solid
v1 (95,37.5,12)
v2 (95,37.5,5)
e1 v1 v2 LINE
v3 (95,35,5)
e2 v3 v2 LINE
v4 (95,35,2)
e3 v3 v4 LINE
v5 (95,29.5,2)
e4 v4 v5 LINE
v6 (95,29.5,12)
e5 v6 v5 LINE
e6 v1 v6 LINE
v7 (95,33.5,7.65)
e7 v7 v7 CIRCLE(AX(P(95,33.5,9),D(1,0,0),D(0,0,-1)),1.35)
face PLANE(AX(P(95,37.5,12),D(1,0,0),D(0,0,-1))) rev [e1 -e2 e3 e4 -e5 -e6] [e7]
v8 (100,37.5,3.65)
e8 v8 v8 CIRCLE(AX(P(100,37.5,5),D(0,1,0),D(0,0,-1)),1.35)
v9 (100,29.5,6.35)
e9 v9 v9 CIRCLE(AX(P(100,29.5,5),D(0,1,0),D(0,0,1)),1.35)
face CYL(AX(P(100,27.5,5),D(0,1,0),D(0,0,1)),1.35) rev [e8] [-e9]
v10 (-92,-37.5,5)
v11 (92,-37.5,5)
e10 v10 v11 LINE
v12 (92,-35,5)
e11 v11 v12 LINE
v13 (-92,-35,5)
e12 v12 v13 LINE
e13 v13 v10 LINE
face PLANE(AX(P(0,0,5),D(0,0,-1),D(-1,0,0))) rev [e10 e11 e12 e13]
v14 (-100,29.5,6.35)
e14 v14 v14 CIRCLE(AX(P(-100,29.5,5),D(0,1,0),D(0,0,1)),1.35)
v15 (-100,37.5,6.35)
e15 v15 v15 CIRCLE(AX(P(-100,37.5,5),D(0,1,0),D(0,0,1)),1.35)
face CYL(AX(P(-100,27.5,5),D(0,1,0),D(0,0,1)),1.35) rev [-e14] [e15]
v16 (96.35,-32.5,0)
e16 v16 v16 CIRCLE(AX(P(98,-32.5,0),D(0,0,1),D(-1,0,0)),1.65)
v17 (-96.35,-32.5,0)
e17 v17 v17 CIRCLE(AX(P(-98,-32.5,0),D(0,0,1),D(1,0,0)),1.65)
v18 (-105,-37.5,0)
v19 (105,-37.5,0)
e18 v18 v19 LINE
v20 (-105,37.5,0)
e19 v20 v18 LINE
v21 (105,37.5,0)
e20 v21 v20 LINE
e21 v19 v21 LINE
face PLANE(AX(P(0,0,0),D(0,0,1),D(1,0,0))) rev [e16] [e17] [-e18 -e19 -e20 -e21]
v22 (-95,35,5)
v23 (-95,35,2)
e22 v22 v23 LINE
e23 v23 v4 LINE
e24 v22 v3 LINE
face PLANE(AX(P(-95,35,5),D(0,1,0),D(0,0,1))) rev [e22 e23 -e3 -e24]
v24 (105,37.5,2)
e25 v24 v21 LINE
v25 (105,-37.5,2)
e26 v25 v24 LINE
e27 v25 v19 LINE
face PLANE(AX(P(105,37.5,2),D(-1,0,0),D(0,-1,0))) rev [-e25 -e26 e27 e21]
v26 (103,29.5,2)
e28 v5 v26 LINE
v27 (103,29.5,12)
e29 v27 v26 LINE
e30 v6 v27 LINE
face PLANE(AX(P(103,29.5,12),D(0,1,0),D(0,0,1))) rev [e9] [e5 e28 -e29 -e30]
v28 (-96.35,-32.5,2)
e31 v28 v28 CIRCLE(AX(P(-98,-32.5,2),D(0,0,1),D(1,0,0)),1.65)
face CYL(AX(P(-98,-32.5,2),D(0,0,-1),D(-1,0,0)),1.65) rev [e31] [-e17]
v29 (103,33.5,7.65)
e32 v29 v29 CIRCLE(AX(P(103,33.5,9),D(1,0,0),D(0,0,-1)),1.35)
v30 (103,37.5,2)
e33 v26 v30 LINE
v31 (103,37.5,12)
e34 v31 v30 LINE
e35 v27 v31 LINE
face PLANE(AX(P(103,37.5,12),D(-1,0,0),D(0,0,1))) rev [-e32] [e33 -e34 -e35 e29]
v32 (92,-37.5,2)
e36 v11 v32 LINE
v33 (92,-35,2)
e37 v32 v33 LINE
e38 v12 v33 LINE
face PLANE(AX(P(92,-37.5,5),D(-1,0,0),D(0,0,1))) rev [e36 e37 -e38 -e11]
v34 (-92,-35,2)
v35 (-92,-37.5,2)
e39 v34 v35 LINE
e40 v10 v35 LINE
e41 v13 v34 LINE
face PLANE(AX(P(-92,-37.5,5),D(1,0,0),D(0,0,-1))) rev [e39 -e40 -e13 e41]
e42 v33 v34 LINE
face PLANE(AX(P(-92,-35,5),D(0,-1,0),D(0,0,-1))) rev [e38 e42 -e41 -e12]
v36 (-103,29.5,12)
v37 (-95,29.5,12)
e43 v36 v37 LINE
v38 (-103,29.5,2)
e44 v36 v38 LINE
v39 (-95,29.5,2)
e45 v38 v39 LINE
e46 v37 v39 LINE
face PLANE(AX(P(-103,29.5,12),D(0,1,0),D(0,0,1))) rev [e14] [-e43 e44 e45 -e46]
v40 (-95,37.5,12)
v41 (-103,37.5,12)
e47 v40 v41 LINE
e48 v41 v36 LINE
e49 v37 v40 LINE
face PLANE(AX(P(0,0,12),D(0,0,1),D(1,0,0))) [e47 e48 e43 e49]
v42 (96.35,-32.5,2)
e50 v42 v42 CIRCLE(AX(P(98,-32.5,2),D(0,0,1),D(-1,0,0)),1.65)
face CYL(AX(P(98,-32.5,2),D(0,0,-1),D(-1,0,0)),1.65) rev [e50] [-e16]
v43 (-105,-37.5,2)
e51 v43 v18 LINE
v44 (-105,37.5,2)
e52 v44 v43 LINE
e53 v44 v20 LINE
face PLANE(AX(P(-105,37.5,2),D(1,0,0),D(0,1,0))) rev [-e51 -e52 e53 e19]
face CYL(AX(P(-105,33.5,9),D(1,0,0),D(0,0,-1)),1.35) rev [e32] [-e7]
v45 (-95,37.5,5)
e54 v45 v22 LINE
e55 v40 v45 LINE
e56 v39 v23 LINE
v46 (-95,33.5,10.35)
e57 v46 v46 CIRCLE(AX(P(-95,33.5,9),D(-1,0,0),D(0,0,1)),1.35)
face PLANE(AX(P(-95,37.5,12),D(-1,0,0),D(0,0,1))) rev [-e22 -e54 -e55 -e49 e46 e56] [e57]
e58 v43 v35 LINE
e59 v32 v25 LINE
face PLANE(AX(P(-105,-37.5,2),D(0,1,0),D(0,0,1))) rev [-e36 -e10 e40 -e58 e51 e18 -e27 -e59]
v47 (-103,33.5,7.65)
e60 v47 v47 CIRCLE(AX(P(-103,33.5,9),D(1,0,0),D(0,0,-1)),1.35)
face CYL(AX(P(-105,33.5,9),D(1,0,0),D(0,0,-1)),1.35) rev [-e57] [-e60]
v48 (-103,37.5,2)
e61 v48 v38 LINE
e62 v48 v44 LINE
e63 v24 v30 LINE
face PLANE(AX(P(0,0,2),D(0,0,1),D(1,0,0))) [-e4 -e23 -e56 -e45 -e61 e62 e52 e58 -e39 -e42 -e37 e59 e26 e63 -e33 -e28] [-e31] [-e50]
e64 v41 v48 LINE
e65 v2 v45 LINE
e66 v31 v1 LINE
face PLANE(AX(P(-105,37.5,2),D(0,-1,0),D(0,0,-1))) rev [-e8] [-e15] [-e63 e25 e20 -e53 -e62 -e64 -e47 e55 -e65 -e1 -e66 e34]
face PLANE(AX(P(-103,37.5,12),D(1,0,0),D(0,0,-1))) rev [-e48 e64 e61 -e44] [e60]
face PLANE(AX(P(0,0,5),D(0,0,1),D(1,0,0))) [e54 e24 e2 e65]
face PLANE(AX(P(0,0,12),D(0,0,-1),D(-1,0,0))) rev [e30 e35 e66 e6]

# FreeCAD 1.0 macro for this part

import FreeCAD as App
import Part
import Sketcher

V = App.Vector

doc = App.newDocument("Part")
body = doc.addObject("PartDesign::Body", "Body")

sketch1 = body.newObject("Sketcher::SketchObject", "Sketch")
sketch1.AttachmentSupport = (doc.getObject("XY_Plane"), [""])
sketch1.MapMode = "FlatFace"
sketch1.addGeometry(Part.LineSegment(V(-105, 37.5, 0), V(-105, -37.5, 0)), False)
sketch1.addGeometry(Part.LineSegment(V(-105, -37.5, 0), V(105, -37.5, 0)), False)
sketch1.addGeometry(Part.LineSegment(V(105, -37.5, 0), V(105, 37.5, 0)), False)
sketch1.addGeometry(Part.LineSegment(V(105, 37.5, 0), V(-105, 37.5, 0)), False)
sketch1.addGeometry(Part.Circle(V(-98, -32.5, 0), V(0, 0, 1), 1.6), False)
sketch1.addGeometry(Part.Circle(V(98, -32.5, 0), V(0, 0, 1), 1.6), False)
sketch1.addConstraint(Sketcher.Constraint("Coincident", 0, 2, 1, 1))
sketch1.addConstraint(Sketcher.Constraint("Coincident", 1, 2, 2, 1))
sketch1.addConstraint(Sketcher.Constraint("Coincident", 2, 2, 3, 1))
sketch1.addConstraint(Sketcher.Constraint("Coincident", 3, 2, 0, 1))
sketch1.addConstraint(Sketcher.Constraint("Vertical", 0))
sketch1.addConstraint(Sketcher.Constraint("Horizontal", 1))
sketch1.addConstraint(Sketcher.Constraint("Vertical", 2))
sketch1.addConstraint(Sketcher.Constraint("Horizontal", 3))
sketch1.addConstraint(Sketcher.Constraint("Equal", 4, 5))
sketch1.addConstraint(Sketcher.Constraint("Symmetric", 0, 2, 2, 2, -1, 1))
sketch1.addConstraint(Sketcher.Constraint("Symmetric", 4, 3, 5, 3, -2))
sketch1.addConstraint(Sketcher.Constraint("Diameter", 4, 3.3))
sketch1.addConstraint(Sketcher.Constraint("DistanceX", 1, 1, 1, 2, 210.0))
sketch1.addConstraint(Sketcher.Constraint("DistanceY", 0, 2, 0, 1, 75.0))
sketch1.addConstraint(Sketcher.Constraint("DistanceX", 4, 3, -1, 1, 98.0))
sketch1.addConstraint(Sketcher.Constraint("DistanceY", 0, 2, 4, 3, 5.0))
pad1 = body.newObject("PartDesign::Pad", "Pad")
pad1.Profile = sketch1
pad1.Length = 2

sketch2 = body.newObject("Sketcher::SketchObject", "Sketch001")
sketch2.AttachmentSupport = (doc.getObject("XY_Plane"), [""])
sketch2.MapMode = "FlatFace"
sketch2.AttachmentOffset = App.Placement(V(0, 0, 2), App.Rotation())
sketch2.addGeometry(Part.LineSegment(V(-103, 38, 0), V(-103, 30, 0)), False)
sketch2.addGeometry(Part.LineSegment(V(-103, 30, 0), V(-95, 30, 0)), False)
sketch2.addGeometry(Part.LineSegment(V(-95, 30, 0), V(-95, 38, 0)), False)
sketch2.addGeometry(Part.LineSegment(V(-95, 38, 0), V(-103, 38, 0)), False)
sketch2.addGeometry(Part.LineSegment(V(95, 38, 0), V(95, 30, 0)), False)
sketch2.addGeometry(Part.LineSegment(V(95, 30, 0), V(103, 30, 0)), False)
sketch2.addGeometry(Part.LineSegment(V(103, 30, 0), V(103, 38, 0)), False)
sketch2.addGeometry(Part.LineSegment(V(103, 38, 0), V(95, 38, 0)), False)
sketch2.addConstraint(Sketcher.Constraint("Coincident", 0, 2, 1, 1))
sketch2.addConstraint(Sketcher.Constraint("Coincident", 1, 2, 2, 1))
sketch2.addConstraint(Sketcher.Constraint("Coincident", 2, 2, 3, 1))
sketch2.addConstraint(Sketcher.Constraint("Coincident", 3, 2, 0, 1))
sketch2.addConstraint(Sketcher.Constraint("Coincident", 4, 2, 5, 1))
sketch2.addConstraint(Sketcher.Constraint("Coincident", 5, 2, 6, 1))
sketch2.addConstraint(Sketcher.Constraint("Coincident", 6, 2, 7, 1))
sketch2.addConstraint(Sketcher.Constraint("Coincident", 7, 2, 4, 1))
sketch2.addConstraint(Sketcher.Constraint("Vertical", 0))
sketch2.addConstraint(Sketcher.Constraint("Horizontal", 1))
sketch2.addConstraint(Sketcher.Constraint("Vertical", 2))
sketch2.addConstraint(Sketcher.Constraint("Horizontal", 3))
sketch2.addConstraint(Sketcher.Constraint("Vertical", 4))
sketch2.addConstraint(Sketcher.Constraint("Horizontal", 5))
sketch2.addConstraint(Sketcher.Constraint("Vertical", 6))
sketch2.addConstraint(Sketcher.Constraint("Horizontal", 7))
sketch2.addConstraint(Sketcher.Constraint("Symmetric", 1, 2, 4, 2, -2))
sketch2.addConstraint(Sketcher.Constraint("Symmetric", 3, 2, 6, 2, -2))
sketch2.addConstraint(Sketcher.Constraint("Equal", 7, 0))
sketch2.addConstraint(Sketcher.Constraint("DistanceX", 1, 1, 1, 2, 8.0))
sketch2.addConstraint(Sketcher.Constraint("DistanceX", 0, 2, -1, 1, 103.0))
sketch2.addConstraint(Sketcher.Constraint("DistanceY", -1, 1, 0, 2, 29.5))
pad2 = body.newObject("PartDesign::Pad", "Pad001")
pad2.Profile = sketch2
pad2.Length = 10

sketch3 = body.newObject("Sketcher::SketchObject", "Sketch002")
sketch3.AttachmentSupport = (doc.getObject("XZ_Plane"), [""])
sketch3.MapMode = "FlatFace"
sketch3.AttachmentOffset = App.Placement(V(0, 0, -37.5), App.Rotation())
sketch3.addGeometry(Part.Circle(V(-100, 5, 0), V(0, 0, 1), 1.4), False)
sketch3.addGeometry(Part.Circle(V(100, 5, 0), V(0, 0, 1), 1.4), False)
sketch3.addConstraint(Sketcher.Constraint("Equal", 0, 1))
sketch3.addConstraint(Sketcher.Constraint("Symmetric", 0, 3, 1, 3, -2))
sketch3.addConstraint(Sketcher.Constraint("Diameter", 0, 2.7))
sketch3.addConstraint(Sketcher.Constraint("DistanceX", 0, 3, -1, 1, 100.0))
sketch3.addConstraint(Sketcher.Constraint("DistanceY", -1, 1, 0, 3, 5.0))
pocket1 = body.newObject("PartDesign::Pocket", "Pocket")
pocket1.Profile = sketch3
pocket1.Length = 10
pocket1.Reversed = True

sketch4 = body.newObject("Sketcher::SketchObject", "Sketch003")
sketch4.AttachmentSupport = (doc.getObject("XY_Plane"), [""])
sketch4.MapMode = "FlatFace"
sketch4.AttachmentOffset = App.Placement(V(0, 0, 2), App.Rotation())
sketch4.addGeometry(Part.LineSegment(V(-95, 37.5, 0), V(-95, 35, 0)), False)
sketch4.addGeometry(Part.LineSegment(V(-95, 35, 0), V(95, 35, 0)), False)
sketch4.addGeometry(Part.LineSegment(V(95, 35, 0), V(95, 37.5, 0)), False)
sketch4.addGeometry(Part.LineSegment(V(95, 37.5, 0), V(-95, 37.5, 0)), False)
sketch4.addConstraint(Sketcher.Constraint("Coincident", 0, 2, 1, 1))
sketch4.addConstraint(Sketcher.Constraint("Coincident", 1, 2, 2, 1))
sketch4.addConstraint(Sketcher.Constraint("Coincident", 2, 2, 3, 1))
sketch4.addConstraint(Sketcher.Constraint("Coincident", 3, 2, 0, 1))
sketch4.addConstraint(Sketcher.Constraint("Vertical", 0))
sketch4.addConstraint(Sketcher.Constraint("Horizontal", 1))
sketch4.addConstraint(Sketcher.Constraint("Vertical", 2))
sketch4.addConstraint(Sketcher.Constraint("Horizontal", 3))
sketch4.addConstraint(Sketcher.Constraint("DistanceX", 1, 1, 1, 2, 190.0))
sketch4.addConstraint(Sketcher.Constraint("DistanceY", 0, 2, 0, 1, 2.5))
sketch4.addConstraint(Sketcher.Constraint("DistanceX", 0, 2, -1, 1, 95.0))
sketch4.addConstraint(Sketcher.Constraint("DistanceY", -1, 1, 0, 2, 35.0))
pad3 = body.newObject("PartDesign::Pad", "Pad002")
pad3.Profile = sketch4
pad3.Length = 3

sketch5 = body.newObject("Sketcher::SketchObject", "Sketch004")
sketch5.AttachmentSupport = (doc.getObject("XY_Plane"), [""])
sketch5.MapMode = "FlatFace"
sketch5.AttachmentOffset = App.Placement(V(0, 0, 2), App.Rotation())
sketch5.addGeometry(Part.LineSegment(V(-92, -35, 0), V(-92, -37.5, 0)), False)
sketch5.addGeometry(Part.LineSegment(V(-92, -37.5, 0), V(92, -37.5, 0)), False)
sketch5.addGeometry(Part.LineSegment(V(92, -37.5, 0), V(92, -35, 0)), False)
sketch5.addGeometry(Part.LineSegment(V(92, -35, 0), V(-92, -35, 0)), False)
sketch5.addConstraint(Sketcher.Constraint("Coincident", 0, 2, 1, 1))
sketch5.addConstraint(Sketcher.Constraint("Coincident", 1, 2, 2, 1))
sketch5.addConstraint(Sketcher.Constraint("Coincident", 2, 2, 3, 1))
sketch5.addConstraint(Sketcher.Constraint("Coincident", 3, 2, 0, 1))
sketch5.addConstraint(Sketcher.Constraint("Vertical", 0))
sketch5.addConstraint(Sketcher.Constraint("Horizontal", 1))
sketch5.addConstraint(Sketcher.Constraint("Vertical", 2))
sketch5.addConstraint(Sketcher.Constraint("Horizontal", 3))
sketch5.addConstraint(Sketcher.Constraint("DistanceX", 1, 1, 1, 2, 184.0))
sketch5.addConstraint(Sketcher.Constraint("DistanceY", 0, 2, 0, 1, 2.5))
sketch5.addConstraint(Sketcher.Constraint("DistanceX", 0, 2, -1, 1, 92.0))
sketch5.addConstraint(Sketcher.Constraint("DistanceY", 2, 2, -1, 1, 35.0))
pad4 = body.newObject("PartDesign::Pad", "Pad003")
pad4.Profile = sketch5
pad4.Length = 3

sketch6 = body.newObject("Sketcher::SketchObject", "Sketch005")
sketch6.AttachmentSupport = (doc.getObject("YZ_Plane"), [""])
sketch6.MapMode = "FlatFace"
sketch6.AttachmentOffset = App.Placement(V(0, 0, 103), App.Rotation())
sketch6.addGeometry(Part.Circle(V(33.5, 9, 0), V(0, 0, 1), 1.4), False)
sketch6.addConstraint(Sketcher.Constraint("Diameter", 0, 2.7))
sketch6.addConstraint(Sketcher.Constraint("DistanceY", -1, 1, 0, 3, 9.0))
sketch6.addConstraint(Sketcher.Constraint("DistanceX", -1, 1, 0, 3, 33.5))
pocket2 = body.newObject("PartDesign::Pocket", "Pocket001")
pocket2.Profile = sketch6
pocket2.Type = "ThroughAll"

doc.recompute()
